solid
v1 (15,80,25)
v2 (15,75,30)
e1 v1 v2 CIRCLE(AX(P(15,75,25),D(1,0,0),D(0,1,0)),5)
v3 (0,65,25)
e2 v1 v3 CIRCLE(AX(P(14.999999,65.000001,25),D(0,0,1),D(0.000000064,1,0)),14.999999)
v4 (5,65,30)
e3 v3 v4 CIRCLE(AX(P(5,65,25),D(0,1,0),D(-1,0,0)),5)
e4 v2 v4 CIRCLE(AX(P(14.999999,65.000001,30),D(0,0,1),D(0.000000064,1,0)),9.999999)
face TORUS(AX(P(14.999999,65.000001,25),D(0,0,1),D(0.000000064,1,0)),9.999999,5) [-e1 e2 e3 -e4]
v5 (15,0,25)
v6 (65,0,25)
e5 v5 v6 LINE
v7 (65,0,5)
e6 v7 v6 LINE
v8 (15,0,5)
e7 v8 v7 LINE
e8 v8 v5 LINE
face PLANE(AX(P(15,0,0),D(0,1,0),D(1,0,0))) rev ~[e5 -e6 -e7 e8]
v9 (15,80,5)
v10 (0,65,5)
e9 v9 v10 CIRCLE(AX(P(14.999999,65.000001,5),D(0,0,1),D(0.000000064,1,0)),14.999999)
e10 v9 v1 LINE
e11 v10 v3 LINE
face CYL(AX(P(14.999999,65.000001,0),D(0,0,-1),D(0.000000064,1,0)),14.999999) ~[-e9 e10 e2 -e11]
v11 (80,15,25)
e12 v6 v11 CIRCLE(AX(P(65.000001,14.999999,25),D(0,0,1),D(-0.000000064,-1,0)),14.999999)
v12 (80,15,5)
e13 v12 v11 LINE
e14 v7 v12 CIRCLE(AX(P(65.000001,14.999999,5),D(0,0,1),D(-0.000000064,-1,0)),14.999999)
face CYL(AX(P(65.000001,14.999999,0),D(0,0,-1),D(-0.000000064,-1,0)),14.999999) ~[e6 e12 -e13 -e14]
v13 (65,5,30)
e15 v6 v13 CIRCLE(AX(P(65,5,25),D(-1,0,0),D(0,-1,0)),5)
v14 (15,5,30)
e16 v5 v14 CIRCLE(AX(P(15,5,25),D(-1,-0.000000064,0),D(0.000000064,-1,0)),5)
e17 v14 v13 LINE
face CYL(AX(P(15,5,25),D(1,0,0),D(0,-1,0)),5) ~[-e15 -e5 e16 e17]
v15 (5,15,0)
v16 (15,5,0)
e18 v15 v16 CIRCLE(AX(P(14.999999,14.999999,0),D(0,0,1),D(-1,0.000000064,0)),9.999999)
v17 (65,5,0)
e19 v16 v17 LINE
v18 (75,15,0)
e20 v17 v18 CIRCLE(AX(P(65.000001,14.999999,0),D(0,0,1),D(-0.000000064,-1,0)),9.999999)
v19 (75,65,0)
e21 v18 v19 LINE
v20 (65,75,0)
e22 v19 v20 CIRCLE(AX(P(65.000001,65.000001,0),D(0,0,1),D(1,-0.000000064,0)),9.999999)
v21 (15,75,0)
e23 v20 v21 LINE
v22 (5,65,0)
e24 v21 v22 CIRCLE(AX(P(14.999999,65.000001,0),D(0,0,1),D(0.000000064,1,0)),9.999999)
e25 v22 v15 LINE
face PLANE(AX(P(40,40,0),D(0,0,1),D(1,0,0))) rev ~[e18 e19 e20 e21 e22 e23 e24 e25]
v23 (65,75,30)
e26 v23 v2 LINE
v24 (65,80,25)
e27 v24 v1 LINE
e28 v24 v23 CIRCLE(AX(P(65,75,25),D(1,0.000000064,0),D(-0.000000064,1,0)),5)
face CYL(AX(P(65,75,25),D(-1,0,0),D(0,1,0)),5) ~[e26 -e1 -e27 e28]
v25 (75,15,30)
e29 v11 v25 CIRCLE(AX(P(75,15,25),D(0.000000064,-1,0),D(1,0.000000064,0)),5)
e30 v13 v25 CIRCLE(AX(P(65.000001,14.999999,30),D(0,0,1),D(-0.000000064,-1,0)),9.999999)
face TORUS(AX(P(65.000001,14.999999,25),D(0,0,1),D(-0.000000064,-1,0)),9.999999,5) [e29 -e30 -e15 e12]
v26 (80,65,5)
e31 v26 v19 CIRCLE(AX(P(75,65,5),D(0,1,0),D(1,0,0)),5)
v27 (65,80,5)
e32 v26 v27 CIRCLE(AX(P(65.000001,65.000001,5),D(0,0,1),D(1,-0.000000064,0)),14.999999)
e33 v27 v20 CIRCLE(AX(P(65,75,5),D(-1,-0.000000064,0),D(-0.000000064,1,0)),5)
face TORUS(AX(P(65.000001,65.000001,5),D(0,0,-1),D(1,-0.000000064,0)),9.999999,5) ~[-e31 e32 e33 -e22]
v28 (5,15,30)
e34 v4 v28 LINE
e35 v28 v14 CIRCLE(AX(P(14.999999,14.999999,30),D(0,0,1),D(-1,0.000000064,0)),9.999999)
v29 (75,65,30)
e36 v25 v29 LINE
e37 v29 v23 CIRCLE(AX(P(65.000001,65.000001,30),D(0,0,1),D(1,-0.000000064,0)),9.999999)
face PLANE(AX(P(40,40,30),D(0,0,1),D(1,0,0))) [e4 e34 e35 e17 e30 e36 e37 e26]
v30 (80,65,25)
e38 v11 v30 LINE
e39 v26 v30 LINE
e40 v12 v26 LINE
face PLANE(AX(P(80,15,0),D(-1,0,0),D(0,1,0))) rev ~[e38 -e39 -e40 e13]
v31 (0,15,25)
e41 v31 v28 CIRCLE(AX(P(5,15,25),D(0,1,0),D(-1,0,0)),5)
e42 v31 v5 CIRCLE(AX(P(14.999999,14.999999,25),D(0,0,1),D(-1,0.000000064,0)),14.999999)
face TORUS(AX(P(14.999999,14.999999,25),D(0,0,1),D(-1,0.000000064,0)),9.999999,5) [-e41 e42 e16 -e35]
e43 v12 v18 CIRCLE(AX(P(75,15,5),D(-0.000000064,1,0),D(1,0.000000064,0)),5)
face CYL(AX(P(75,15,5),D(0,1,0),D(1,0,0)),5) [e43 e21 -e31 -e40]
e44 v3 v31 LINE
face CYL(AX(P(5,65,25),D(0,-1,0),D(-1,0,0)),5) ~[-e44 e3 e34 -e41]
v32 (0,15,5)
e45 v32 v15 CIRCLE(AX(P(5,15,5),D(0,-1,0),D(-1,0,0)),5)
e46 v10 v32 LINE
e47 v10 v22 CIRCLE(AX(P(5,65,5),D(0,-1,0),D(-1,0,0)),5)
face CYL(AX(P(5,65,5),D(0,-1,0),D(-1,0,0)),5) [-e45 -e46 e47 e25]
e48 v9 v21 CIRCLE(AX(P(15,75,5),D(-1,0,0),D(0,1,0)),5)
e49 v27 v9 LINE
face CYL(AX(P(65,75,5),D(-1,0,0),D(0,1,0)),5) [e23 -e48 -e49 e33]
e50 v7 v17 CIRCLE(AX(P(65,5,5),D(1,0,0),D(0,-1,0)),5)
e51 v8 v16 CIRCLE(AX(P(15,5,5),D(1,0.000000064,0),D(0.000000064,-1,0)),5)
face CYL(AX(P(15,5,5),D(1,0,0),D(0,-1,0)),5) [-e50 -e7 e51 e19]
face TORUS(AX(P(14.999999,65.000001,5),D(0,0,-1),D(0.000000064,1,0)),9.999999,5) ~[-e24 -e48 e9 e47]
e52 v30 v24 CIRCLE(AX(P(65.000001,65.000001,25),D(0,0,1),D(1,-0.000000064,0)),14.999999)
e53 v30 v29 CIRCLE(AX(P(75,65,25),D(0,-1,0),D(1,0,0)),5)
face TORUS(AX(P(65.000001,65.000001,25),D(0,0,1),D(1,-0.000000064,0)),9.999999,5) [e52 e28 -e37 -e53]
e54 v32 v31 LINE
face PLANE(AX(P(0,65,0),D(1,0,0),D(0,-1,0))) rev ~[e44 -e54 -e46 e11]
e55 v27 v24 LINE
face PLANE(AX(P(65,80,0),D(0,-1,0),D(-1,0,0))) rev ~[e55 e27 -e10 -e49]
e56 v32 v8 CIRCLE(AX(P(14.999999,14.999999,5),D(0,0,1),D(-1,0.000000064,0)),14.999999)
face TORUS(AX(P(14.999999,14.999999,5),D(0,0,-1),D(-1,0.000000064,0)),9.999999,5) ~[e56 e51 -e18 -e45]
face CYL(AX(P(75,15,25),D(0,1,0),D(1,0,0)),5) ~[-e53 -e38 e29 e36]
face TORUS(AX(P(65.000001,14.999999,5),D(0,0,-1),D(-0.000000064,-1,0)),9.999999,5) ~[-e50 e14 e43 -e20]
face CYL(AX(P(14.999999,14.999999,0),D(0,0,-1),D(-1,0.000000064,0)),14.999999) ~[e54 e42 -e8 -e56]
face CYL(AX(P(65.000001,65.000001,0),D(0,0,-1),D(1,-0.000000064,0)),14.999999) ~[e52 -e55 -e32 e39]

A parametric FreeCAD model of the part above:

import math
import FreeCAD as App
import Part
import Sketcher
from FreeCAD import Vector
Q = App.Units.Quantity


def edges_at(feature, points):
    """Names of the edges that pass closest to the given points."""
    edges = feature.Shape.Edges
    near = lambda p: min(range(len(edges)), key=lambda i: edges[i].distToShape(Part.Vertex(*p))[0])
    return sorted({f"Edge{near(p) + 1}" for p in points})

doc = App.newDocument("Part")
params = doc.addObject("Spreadsheet::Sheet", "Params")
for row, (alias, value) in enumerate([
    ("sketch1_radius", "14.999999 mm"),
    ("sketch1_width", "50 mm"),
    ("pad1_length", "30 mm"),
    ("fillet_radius", "5 mm"),
], start=1):
    params.set(f"A{row}", alias)
    params.set(f"B{row}", "=" + value)
    params.setAlias(f"B{row}", alias)

body = doc.addObject("PartDesign::Body", "Body")

sketch1 = body.newObject("Sketcher::SketchObject", "Sketch")
sketch1.AttachmentSupport = (doc.getObject("XY_Plane"), [""])
sketch1.MapMode = "FlatFace"
sketch1.addGeometry([
    Part.ArcOfCircle(Part.Circle(Vector(14.999999, 14.999999, 0), Vector(0, 0, 1), 14.999999), math.radians(179.999996), math.radians(270.000004)),
    Part.LineSegment(Vector(15, 0, 0), Vector(65, 0, 0)),
    Part.ArcOfCircle(Part.Circle(Vector(65.000001, 14.999999, 0), Vector(0, 0, 1), 14.999999), math.radians(-90.000004), math.radians(0.000004)),
    Part.LineSegment(Vector(80, 15, 0), Vector(80, 65, 0)),
    Part.ArcOfCircle(Part.Circle(Vector(65.000001, 65.000001, 0), Vector(0, 0, 1), 14.999999), math.radians(-0.000004), math.radians(90.000004)),
    Part.LineSegment(Vector(65, 80, 0), Vector(15, 80, 0)),
    Part.ArcOfCircle(Part.Circle(Vector(14.999999, 65.000001, 0), Vector(0, 0, 1), 14.999999), math.radians(89.999996), math.radians(180.000004)),
    Part.LineSegment(Vector(0, 65, 0), Vector(0, 15, 0)),
], False)
sketch1.addConstraint([
    Sketcher.Constraint("Tangent", 0, 2, 1, 1),
    Sketcher.Constraint("Tangent", 1, 2, 2, 1),
    Sketcher.Constraint("Tangent", 2, 2, 3, 1),
    Sketcher.Constraint("Tangent", 3, 2, 4, 1),
    Sketcher.Constraint("Tangent", 4, 2, 5, 1),
    Sketcher.Constraint("Tangent", 5, 2, 6, 1),
    Sketcher.Constraint("Tangent", 6, 2, 7, 1),
    Sketcher.Constraint("Tangent", 7, 2, 0, 1),
    Sketcher.Constraint("Horizontal", 1),
    Sketcher.Constraint("Vertical", 3),
    Sketcher.Constraint("Horizontal", 5),
    Sketcher.Constraint("Vertical", 7),
    Sketcher.Constraint("Equal", 0, 2),
    Sketcher.Constraint("Equal", 2, 4),
    Sketcher.Constraint("Equal", 4, 6),
    Sketcher.Constraint("PointOnObject", 0, 2, -1),
    Sketcher.Constraint("PointOnObject", 6, 2, -2),
    Sketcher.Constraint("Equal", 5, 3),
    Sketcher.Constraint("Radius", 0, Q("14.999999 mm")),
    Sketcher.Constraint("DistanceX", 1, 1, 1, 2, Q("50 mm")),
])
sketch1.setExpression("Constraints[18]", "Params.sketch1_radius")
sketch1.setExpression("Constraints[19]", "Params.sketch1_width")
pad1 = body.newObject("PartDesign::Pad", "Pad")
pad1.Profile = sketch1
pad1.setExpression("Length", "Params.pad1_length")
doc.recompute()

fillet = body.newObject("PartDesign::Fillet", "Fillet")
fillet.Base = (pad1, edges_at(pad1, [
    (0, 40, 30),
    (4.393, 4.393, 30),
    (40, 0, 30),
    (75.607, 4.393, 30),
    (80, 40, 30),
    (75.607, 75.607, 30),
    (40, 80, 30),
    (4.393, 75.607, 30),
    (0, 40, 0),
    (4.393, 4.393, 0),
    (40, 0, 0),
    (75.607, 4.393, 0),
    (80, 40, 0),
    (75.607, 75.607, 0),
    (40, 80, 0),
    (4.393, 75.607, 0),
]))
fillet.setExpression("Radius", "Params.fillet_radius")

doc.recompute()
